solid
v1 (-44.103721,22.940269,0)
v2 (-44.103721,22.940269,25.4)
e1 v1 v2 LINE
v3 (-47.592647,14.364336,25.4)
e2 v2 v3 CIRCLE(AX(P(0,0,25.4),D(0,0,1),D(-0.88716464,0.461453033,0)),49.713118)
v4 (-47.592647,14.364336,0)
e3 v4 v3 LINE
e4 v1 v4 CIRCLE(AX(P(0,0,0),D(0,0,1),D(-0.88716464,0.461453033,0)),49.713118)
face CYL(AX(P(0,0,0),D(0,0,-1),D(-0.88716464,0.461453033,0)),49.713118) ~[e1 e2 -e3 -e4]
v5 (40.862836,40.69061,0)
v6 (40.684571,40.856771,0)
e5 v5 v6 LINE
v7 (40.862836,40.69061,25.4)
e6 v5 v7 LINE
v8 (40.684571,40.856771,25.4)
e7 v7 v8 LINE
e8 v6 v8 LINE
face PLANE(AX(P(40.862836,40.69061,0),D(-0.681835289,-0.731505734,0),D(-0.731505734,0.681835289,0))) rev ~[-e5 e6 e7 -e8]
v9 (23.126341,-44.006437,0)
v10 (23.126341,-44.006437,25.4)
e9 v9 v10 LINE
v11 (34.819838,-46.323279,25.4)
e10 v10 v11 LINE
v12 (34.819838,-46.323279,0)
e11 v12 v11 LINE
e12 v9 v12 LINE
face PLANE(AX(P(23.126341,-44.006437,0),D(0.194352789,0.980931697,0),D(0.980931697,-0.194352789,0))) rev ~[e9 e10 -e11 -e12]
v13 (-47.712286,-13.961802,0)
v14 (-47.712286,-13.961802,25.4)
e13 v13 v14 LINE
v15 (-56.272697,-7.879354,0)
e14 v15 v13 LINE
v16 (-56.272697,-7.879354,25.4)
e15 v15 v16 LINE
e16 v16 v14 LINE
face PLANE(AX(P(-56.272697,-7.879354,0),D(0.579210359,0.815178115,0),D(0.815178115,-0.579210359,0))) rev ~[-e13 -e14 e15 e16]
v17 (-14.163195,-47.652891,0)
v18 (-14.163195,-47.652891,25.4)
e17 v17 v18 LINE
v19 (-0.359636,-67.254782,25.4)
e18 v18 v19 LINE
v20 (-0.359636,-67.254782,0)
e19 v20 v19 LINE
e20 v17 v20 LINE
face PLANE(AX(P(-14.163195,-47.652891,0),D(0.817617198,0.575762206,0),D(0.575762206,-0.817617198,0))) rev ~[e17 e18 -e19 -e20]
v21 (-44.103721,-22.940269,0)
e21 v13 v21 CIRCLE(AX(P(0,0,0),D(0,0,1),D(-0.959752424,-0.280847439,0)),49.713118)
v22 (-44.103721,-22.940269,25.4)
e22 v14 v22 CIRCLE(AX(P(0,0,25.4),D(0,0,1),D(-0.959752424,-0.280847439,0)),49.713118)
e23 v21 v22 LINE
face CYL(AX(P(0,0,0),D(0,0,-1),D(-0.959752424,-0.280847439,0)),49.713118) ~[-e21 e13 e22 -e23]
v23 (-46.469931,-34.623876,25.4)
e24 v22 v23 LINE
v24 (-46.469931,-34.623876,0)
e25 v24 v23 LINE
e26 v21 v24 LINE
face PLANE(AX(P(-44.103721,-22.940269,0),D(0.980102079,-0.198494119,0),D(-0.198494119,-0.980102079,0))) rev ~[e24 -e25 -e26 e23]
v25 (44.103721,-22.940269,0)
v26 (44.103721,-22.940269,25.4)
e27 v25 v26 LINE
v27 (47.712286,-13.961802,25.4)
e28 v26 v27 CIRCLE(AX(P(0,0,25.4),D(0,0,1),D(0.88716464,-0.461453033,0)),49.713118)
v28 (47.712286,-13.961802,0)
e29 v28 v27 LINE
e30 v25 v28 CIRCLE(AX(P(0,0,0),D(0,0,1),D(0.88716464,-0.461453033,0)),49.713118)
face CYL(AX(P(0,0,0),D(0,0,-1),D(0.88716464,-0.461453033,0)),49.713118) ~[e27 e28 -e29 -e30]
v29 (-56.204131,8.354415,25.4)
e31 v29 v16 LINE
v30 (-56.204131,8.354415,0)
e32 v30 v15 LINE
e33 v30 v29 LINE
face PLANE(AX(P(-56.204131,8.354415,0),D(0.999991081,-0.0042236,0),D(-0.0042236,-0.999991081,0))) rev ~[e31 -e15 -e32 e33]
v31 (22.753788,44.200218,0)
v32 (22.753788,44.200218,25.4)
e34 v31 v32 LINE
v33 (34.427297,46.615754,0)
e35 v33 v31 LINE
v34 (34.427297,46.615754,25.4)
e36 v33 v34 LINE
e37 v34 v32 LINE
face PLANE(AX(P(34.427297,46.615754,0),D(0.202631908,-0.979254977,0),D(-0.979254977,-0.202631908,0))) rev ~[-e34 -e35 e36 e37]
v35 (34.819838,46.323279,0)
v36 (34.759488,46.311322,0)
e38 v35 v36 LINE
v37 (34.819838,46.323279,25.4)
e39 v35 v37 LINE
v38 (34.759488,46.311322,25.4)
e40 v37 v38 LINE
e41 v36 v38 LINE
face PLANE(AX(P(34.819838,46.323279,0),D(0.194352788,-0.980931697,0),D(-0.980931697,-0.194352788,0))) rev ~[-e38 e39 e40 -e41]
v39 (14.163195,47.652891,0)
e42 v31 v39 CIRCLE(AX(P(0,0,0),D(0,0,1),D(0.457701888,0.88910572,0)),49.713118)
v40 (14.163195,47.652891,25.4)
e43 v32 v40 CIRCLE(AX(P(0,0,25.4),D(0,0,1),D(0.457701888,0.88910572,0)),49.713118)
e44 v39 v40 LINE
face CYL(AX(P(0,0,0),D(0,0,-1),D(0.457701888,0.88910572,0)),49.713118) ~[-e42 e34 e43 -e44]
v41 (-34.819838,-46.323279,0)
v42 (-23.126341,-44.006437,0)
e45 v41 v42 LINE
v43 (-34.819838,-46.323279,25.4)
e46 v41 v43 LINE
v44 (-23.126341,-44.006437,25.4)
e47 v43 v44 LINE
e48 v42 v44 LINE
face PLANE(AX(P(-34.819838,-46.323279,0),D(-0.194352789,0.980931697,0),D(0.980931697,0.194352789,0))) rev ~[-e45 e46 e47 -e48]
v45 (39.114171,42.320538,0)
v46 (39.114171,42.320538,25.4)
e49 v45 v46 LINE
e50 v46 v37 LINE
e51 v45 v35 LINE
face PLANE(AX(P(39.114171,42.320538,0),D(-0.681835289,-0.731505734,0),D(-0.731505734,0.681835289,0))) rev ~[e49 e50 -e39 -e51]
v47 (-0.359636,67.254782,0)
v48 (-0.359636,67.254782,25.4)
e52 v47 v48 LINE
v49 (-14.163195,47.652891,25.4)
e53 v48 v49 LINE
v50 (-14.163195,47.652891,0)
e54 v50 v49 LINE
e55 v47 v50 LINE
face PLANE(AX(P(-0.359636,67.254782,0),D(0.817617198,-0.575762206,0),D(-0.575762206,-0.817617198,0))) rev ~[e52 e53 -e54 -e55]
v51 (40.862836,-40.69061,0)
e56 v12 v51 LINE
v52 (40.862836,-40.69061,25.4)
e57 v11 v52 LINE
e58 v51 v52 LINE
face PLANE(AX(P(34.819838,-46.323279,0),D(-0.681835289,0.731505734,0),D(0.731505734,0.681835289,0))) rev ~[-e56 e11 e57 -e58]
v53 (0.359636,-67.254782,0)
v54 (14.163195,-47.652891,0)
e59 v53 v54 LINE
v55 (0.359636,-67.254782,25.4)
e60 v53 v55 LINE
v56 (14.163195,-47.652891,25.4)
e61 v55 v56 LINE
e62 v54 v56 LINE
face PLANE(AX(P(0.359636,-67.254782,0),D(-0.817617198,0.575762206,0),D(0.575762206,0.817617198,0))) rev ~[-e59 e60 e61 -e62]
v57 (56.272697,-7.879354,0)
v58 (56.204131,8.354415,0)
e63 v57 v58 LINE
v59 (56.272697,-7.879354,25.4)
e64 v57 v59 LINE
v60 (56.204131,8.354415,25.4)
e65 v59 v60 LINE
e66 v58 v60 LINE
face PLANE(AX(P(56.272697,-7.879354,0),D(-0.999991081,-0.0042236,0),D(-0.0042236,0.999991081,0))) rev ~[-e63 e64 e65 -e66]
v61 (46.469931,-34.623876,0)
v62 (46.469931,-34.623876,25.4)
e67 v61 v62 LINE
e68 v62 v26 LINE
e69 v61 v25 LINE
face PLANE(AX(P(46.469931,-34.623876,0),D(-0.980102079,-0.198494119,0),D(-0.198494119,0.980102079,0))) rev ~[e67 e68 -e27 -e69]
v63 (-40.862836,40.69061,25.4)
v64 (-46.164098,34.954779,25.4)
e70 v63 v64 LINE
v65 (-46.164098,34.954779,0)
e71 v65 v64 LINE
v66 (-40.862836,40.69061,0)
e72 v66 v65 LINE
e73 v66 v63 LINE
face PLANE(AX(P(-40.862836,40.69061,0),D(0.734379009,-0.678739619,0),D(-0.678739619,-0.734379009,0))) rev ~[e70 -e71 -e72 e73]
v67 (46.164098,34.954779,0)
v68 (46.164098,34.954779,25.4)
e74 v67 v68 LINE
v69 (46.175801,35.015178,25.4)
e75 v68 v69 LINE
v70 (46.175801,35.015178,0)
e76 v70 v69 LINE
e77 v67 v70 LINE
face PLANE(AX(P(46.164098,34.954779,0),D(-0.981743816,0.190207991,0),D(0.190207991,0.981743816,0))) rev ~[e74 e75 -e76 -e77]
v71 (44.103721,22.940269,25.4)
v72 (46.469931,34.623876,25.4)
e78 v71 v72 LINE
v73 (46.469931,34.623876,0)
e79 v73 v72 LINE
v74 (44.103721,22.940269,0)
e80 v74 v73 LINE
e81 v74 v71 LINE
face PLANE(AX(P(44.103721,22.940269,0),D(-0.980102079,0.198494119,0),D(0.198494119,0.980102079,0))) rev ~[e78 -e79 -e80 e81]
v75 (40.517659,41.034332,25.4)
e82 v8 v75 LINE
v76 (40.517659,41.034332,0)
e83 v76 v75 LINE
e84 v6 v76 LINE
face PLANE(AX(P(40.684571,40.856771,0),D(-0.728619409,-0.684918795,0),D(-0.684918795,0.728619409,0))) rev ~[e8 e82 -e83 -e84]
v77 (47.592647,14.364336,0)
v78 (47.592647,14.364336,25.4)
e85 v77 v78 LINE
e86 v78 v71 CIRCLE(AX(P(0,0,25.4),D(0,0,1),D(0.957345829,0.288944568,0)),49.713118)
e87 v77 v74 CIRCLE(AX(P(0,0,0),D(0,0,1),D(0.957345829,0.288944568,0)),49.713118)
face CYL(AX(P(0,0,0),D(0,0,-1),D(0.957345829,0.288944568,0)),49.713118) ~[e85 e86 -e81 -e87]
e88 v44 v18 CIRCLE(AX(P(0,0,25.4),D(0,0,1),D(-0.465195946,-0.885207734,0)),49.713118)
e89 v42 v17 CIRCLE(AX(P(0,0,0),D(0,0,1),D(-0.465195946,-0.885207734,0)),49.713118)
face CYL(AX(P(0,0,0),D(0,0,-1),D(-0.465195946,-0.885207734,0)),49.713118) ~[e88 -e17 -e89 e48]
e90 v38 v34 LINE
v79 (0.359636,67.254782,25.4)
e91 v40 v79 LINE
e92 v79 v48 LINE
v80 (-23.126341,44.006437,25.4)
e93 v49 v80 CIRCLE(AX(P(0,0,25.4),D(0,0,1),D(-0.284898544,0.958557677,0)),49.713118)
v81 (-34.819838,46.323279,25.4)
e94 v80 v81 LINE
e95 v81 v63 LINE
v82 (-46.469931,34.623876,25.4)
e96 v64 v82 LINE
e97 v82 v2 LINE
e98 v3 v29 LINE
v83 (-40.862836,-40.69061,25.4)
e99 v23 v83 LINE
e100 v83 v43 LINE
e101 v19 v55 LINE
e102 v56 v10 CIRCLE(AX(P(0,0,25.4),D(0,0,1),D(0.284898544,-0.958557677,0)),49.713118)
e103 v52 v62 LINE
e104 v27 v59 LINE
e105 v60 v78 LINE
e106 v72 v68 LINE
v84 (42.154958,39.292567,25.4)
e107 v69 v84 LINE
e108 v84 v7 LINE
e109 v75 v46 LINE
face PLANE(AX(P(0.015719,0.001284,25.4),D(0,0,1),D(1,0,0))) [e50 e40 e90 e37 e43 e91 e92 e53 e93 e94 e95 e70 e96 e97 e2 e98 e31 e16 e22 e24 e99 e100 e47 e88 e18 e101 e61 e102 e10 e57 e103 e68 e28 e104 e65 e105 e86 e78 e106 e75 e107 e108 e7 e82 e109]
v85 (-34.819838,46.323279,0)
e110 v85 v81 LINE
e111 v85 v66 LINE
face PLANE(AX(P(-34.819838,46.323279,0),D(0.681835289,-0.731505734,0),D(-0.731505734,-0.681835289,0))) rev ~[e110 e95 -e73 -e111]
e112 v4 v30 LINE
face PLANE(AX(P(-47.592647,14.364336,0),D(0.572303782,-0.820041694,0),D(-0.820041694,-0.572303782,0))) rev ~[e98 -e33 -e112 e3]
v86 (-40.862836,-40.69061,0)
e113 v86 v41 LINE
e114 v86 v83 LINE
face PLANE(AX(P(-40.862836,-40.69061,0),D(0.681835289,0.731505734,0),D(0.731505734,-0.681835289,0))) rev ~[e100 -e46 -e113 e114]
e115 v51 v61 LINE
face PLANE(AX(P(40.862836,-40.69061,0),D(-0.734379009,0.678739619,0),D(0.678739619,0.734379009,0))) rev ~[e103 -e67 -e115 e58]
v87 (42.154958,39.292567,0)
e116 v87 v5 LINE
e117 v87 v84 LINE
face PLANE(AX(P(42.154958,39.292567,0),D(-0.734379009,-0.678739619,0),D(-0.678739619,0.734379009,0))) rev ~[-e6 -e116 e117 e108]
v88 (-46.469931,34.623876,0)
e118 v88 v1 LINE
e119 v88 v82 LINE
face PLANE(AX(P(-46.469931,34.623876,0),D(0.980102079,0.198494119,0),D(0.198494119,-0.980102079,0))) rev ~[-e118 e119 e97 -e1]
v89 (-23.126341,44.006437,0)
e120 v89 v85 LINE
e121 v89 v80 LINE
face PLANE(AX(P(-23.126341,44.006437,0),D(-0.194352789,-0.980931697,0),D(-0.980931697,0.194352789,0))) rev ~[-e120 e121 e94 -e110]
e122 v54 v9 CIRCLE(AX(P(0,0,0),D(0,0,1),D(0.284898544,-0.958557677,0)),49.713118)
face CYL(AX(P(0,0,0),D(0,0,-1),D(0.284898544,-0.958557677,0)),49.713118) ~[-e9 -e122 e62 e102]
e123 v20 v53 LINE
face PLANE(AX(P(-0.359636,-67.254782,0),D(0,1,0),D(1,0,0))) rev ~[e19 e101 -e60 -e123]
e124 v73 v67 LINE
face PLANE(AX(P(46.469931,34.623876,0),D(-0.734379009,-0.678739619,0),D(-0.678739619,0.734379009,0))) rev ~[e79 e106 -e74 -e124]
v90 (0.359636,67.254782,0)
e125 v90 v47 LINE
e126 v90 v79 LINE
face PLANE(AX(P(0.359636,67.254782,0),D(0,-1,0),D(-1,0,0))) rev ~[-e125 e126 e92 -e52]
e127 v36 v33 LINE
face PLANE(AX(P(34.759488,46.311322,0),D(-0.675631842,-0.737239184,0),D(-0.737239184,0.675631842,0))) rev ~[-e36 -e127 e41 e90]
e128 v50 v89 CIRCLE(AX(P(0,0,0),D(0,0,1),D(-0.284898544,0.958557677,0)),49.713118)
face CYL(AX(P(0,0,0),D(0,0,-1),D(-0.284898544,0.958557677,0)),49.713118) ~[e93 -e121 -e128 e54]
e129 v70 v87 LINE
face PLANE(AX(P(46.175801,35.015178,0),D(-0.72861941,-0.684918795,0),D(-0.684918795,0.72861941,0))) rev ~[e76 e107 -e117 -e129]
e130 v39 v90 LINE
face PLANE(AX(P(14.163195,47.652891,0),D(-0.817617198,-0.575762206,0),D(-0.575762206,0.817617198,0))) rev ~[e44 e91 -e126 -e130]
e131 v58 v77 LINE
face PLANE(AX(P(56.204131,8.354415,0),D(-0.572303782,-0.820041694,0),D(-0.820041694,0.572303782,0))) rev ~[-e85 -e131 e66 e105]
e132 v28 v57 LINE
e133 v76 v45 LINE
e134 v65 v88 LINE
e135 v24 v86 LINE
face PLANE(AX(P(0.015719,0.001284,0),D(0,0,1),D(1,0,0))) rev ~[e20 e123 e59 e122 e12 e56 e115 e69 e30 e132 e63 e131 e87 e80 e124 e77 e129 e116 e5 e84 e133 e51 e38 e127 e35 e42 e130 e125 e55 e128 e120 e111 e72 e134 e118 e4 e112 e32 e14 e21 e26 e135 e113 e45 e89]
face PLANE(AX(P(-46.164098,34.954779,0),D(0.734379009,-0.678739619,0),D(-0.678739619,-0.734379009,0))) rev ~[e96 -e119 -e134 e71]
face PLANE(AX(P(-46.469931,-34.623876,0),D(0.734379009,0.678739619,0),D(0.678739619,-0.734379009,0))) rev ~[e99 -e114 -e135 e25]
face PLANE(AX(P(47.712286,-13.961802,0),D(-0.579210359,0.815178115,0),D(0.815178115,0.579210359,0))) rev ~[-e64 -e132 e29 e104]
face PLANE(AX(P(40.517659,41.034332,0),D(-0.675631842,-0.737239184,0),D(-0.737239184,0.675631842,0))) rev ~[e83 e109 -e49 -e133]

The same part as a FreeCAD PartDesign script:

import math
import FreeCAD as App
import Part
import Sketcher

V = App.Vector
Q = App.Units.Quantity

doc = App.newDocument("Part")
body = doc.addObject("PartDesign::Body", "Body")

sketch1 = body.newObject("Sketcher::SketchObject", "Sketch")
sketch1.AttachmentSupport = (doc.getObject("XY_Plane"), [""])
sketch1.MapMode = "FlatFace"
sketch1.addGeometry([
    Part.ArcOfCircle(Part.Circle(V(0, 0, 0), V(0, 0, 1), 49.71), math.radians(16.79), math.radians(27.48)),
    Part.LineSegment(V(44.1, 22.94, 0), V(46.47, 34.62, 0)),
    Part.LineSegment(V(46.47, 34.62, 0), V(46.16, 34.95, 0)),
    Part.LineSegment(V(46.16, 34.95, 0), V(46.18, 35.02, 0)),
    Part.LineSegment(V(46.18, 35.02, 0), V(42.15, 39.29, 0)),
    Part.LineSegment(V(42.15, 39.29, 0), V(40.86, 40.69, 0)),
    Part.LineSegment(V(40.86, 40.69, 0), V(40.68, 40.86, 0)),
    Part.LineSegment(V(40.68, 40.86, 0), V(40.52, 41.03, 0)),
    Part.LineSegment(V(40.52, 41.03, 0), V(39.11, 42.32, 0)),
    Part.LineSegment(V(39.11, 42.32, 0), V(34.82, 46.32, 0)),
    Part.LineSegment(V(34.82, 46.32, 0), V(34.76, 46.31, 0)),
    Part.LineSegment(V(34.76, 46.31, 0), V(34.43, 46.62, 0)),
    Part.LineSegment(V(34.43, 46.62, 0), V(22.75, 44.2, 0)),
    Part.ArcOfCircle(Part.Circle(V(0, 0, 0), V(0, 0, 1), 49.71), math.radians(62.76), math.radians(73.45)),
    Part.LineSegment(V(14.16, 47.65, 0), V(0.36, 67.25, 0)),
    Part.LineSegment(V(0.36, 67.25, 0), V(-0.36, 67.25, 0)),
    Part.LineSegment(V(-0.36, 67.25, 0), V(-14.16, 47.65, 0)),
    Part.ArcOfCircle(Part.Circle(V(0, 0, 0), V(0, 0, 1), 49.71), math.radians(106.55), math.radians(117.72)),
    Part.LineSegment(V(-23.13, 44.01, 0), V(-34.82, 46.32, 0)),
    Part.LineSegment(V(-34.82, 46.32, 0), V(-40.86, 40.69, 0)),
    Part.LineSegment(V(-40.86, 40.69, 0), V(-46.16, 34.95, 0)),
    Part.LineSegment(V(-46.16, 34.95, 0), V(-46.47, 34.62, 0)),
    Part.LineSegment(V(-46.47, 34.62, 0), V(-44.1, 22.94, 0)),
    Part.ArcOfCircle(Part.Circle(V(0, 0, 0), V(0, 0, 1), 49.71), math.radians(152.52), math.radians(163.21)),
    Part.LineSegment(V(-47.59, 14.36, 0), V(-56.2, 8.35, 0)),
    Part.LineSegment(V(-56.2, 8.35, 0), V(-56.27, -7.88, 0)),
    Part.LineSegment(V(-56.27, -7.88, 0), V(-47.71, -13.96, 0)),
    Part.ArcOfCircle(Part.Circle(V(0, 0, 0), V(0, 0, 1), 49.71), math.radians(-163.69), math.radians(-152.52)),
    Part.LineSegment(V(-44.1, -22.94, 0), V(-46.47, -34.62, 0)),
    Part.LineSegment(V(-46.47, -34.62, 0), V(-40.86, -40.69, 0)),
    Part.LineSegment(V(-40.86, -40.69, 0), V(-34.82, -46.32, 0)),
    Part.LineSegment(V(-34.82, -46.32, 0), V(-23.13, -44.01, 0)),
    Part.ArcOfCircle(Part.Circle(V(0, 0, 0), V(0, 0, 1), 49.71), math.radians(-117.72), math.radians(-106.55)),
    Part.LineSegment(V(-14.16, -47.65, 0), V(-0.36, -67.25, 0)),
    Part.LineSegment(V(-0.36, -67.25, 0), V(0.36, -67.25, 0)),
    Part.LineSegment(V(0.36, -67.25, 0), V(14.16, -47.65, 0)),
    Part.ArcOfCircle(Part.Circle(V(0, 0, 0), V(0, 0, 1), 49.71), math.radians(-73.45), math.radians(-62.28)),
    Part.LineSegment(V(23.13, -44.01, 0), V(34.82, -46.32, 0)),
    Part.LineSegment(V(34.82, -46.32, 0), V(40.86, -40.69, 0)),
    Part.LineSegment(V(40.86, -40.69, 0), V(46.47, -34.62, 0)),
    Part.LineSegment(V(46.47, -34.62, 0), V(44.1, -22.94, 0)),
    Part.ArcOfCircle(Part.Circle(V(0, 0, 0), V(0, 0, 1), 49.71), math.radians(-27.48), math.radians(-16.31)),
    Part.LineSegment(V(47.71, -13.96, 0), V(56.27, -7.88, 0)),
    Part.LineSegment(V(56.27, -7.88, 0), V(56.2, 8.35, 0)),
    Part.LineSegment(V(56.2, 8.35, 0), V(47.59, 14.36, 0)),
], False)
sketch1.addConstraint([
    Sketcher.Constraint("Coincident", 0, 2, 1, 1),
    Sketcher.Constraint("Coincident", 1, 2, 2, 1),
    Sketcher.Constraint("Coincident", 2, 2, 3, 1),
    Sketcher.Constraint("Coincident", 3, 2, 4, 1),
    Sketcher.Constraint("Coincident", 4, 2, 5, 1),
    Sketcher.Constraint("Coincident", 5, 2, 6, 1),
    Sketcher.Constraint("Coincident", 6, 2, 7, 1),
    Sketcher.Constraint("Coincident", 7, 2, 8, 1),
    Sketcher.Constraint("Coincident", 8, 2, 9, 1),
    Sketcher.Constraint("Coincident", 9, 2, 10, 1),
    Sketcher.Constraint("Coincident", 10, 2, 11, 1),
    Sketcher.Constraint("Coincident", 11, 2, 12, 1),
    Sketcher.Constraint("Coincident", 12, 2, 13, 1),
    Sketcher.Constraint("Coincident", 13, 2, 14, 1),
    Sketcher.Constraint("Coincident", 14, 2, 15, 1),
    Sketcher.Constraint("Coincident", 15, 2, 16, 1),
    Sketcher.Constraint("Coincident", 16, 2, 17, 1),
    Sketcher.Constraint("Coincident", 17, 2, 18, 1),
    Sketcher.Constraint("Coincident", 18, 2, 19, 1),
    Sketcher.Constraint("Coincident", 19, 2, 20, 1),
    Sketcher.Constraint("Coincident", 20, 2, 21, 1),
    Sketcher.Constraint("Coincident", 21, 2, 22, 1),
    Sketcher.Constraint("Coincident", 22, 2, 23, 1),
    Sketcher.Constraint("Coincident", 23, 2, 24, 1),
    Sketcher.Constraint("Coincident", 24, 2, 25, 1),
    Sketcher.Constraint("Coincident", 25, 2, 26, 1),
    Sketcher.Constraint("Coincident", 26, 2, 27, 1),
    Sketcher.Constraint("Coincident", 27, 2, 28, 1),
    Sketcher.Constraint("Coincident", 28, 2, 29, 1),
    Sketcher.Constraint("Coincident", 29, 2, 30, 1),
    Sketcher.Constraint("Coincident", 30, 2, 31, 1),
    Sketcher.Constraint("Coincident", 31, 2, 32, 1),
    Sketcher.Constraint("Coincident", 32, 2, 33, 1),
    Sketcher.Constraint("Coincident", 33, 2, 34, 1),
    Sketcher.Constraint("Coincident", 34, 2, 35, 1),
    Sketcher.Constraint("Coincident", 35, 2, 36, 1),
    Sketcher.Constraint("Coincident", 36, 2, 37, 1),
    Sketcher.Constraint("Coincident", 37, 2, 38, 1),
    Sketcher.Constraint("Coincident", 38, 2, 39, 1),
    Sketcher.Constraint("Coincident", 39, 2, 40, 1),
    Sketcher.Constraint("Coincident", 40, 2, 41, 1),
    Sketcher.Constraint("Coincident", 41, 2, 42, 1),
    Sketcher.Constraint("Coincident", 42, 2, 43, 1),
    Sketcher.Constraint("Coincident", 43, 2, 44, 1),
    Sketcher.Constraint("Coincident", 44, 2, 0, 1),
    Sketcher.Constraint("Horizontal", 15),
    Sketcher.Constraint("Horizontal", 34),
    Sketcher.Constraint("Coincident", 0, 3, -1, 1),
    Sketcher.Constraint("Coincident", 13, 3, -1, 1),
    Sketcher.Constraint("Coincident", 17, 3, -1, 1),
    Sketcher.Constraint("Coincident", 23, 3, -1, 1),
    Sketcher.Constraint("Coincident", 27, 3, -1, 1),
    Sketcher.Constraint("Coincident", 32, 3, -1, 1),
    Sketcher.Constraint("Coincident", 36, 3, -1, 1),
    Sketcher.Constraint("Coincident", 41, 3, -1, 1),
    Sketcher.Constraint("Equal", 0, 13),
    Sketcher.Constraint("Equal", 13, 17),
    Sketcher.Constraint("Equal", 17, 23),
    Sketcher.Constraint("Equal", 23, 27),
    Sketcher.Constraint("Equal", 27, 32),
    Sketcher.Constraint("Equal", 32, 36),
    Sketcher.Constraint("Equal", 36, 41),
    Sketcher.Constraint("Symmetric", 1, 2, 28, 2, -1, 1),
    Sketcher.Constraint("Symmetric", 5, 2, 29, 2, -1, 1),
    Sketcher.Constraint("Symmetric", 9, 2, 30, 2, -1, 1),
    Sketcher.Constraint("Symmetric", 14, 2, 33, 2, -1, 1),
    Sketcher.Constraint("Symmetric", 18, 2, 37, 2, -1, 1),
    Sketcher.Constraint("Symmetric", 19, 2, 38, 2, -1, 1),
    Sketcher.Constraint("Symmetric", 21, 2, 39, 2, -1, 1),
    Sketcher.Constraint("Symmetric", 9, 2, 18, 2, -2),
    Sketcher.Constraint("Symmetric", 5, 2, 19, 2, -2),
    Sketcher.Constraint("Symmetric", 2, 2, 20, 2, -2),
    Sketcher.Constraint("Symmetric", 1, 2, 21, 2, -2),
    Sketcher.Constraint("Symmetric", 25, 2, 42, 2, -2),
    Sketcher.Constraint("Symmetric", 24, 2, 43, 2, -2),
    Sketcher.Constraint("Parallel", 2, 5),
    Sketcher.Constraint("Parallel", 4, 7),
    Sketcher.Constraint("Parallel", 6, 9),
    Sketcher.Constraint("Parallel", 8, 11),
    Sketcher.Constraint("Parallel", 20, 21),
    Sketcher.Constraint("Parallel", 1, 28),
    Sketcher.Constraint("Parallel", 9, 30),
    Sketcher.Constraint("Parallel", 10, 31),
    Sketcher.Constraint("Parallel", 14, 33),
    Sketcher.Constraint("Parallel", 16, 35),
    Sketcher.Constraint("Parallel", 18, 37),
    Sketcher.Constraint("Parallel", 22, 40),
    Sketcher.Constraint("Horizontal", 13, 2, 16, 2),
    Sketcher.Constraint("Horizontal", 0, 2, 22, 2),
    Sketcher.Constraint("Horizontal", 32, 2, 35, 2),
    Sketcher.Constraint("Horizontal", 31, 2, 36, 2),
    Sketcher.Constraint("Horizontal", 26, 2, 41, 2),
    Sketcher.Constraint("Horizontal", 23, 2, 44, 2),
    Sketcher.Constraint("Vertical", 15, 2, 33, 2),
    Sketcher.Constraint("Equal", 6, 7),
    Sketcher.Constraint("Equal", 5, 8),
    Sketcher.Constraint("Equal", 4, 9),
    Sketcher.Constraint("Equal", 3, 10),
    Sketcher.Constraint("Equal", 2, 11),
    Sketcher.Constraint("Equal", 1, 12),
    Sketcher.Constraint("Equal", 12, 18),
    Sketcher.Constraint("Equal", 24, 26),
    Sketcher.Constraint("Equal", 19, 29),
    Sketcher.Constraint("Radius", 0, Q("49.713118 mm")),
    Sketcher.Constraint("DistanceY", 12, 2, 11, 2, Q("0.0950998 in")),
    Sketcher.Constraint("DistanceX", 15, 2, 15, 1, Q("0.719271 mm")),
    Sketcher.Constraint("DistanceX", -1, 1, 2, 2, Q("46.164098 mm")),
    Sketcher.Constraint("DistanceX", -1, 1, 3, 2, Q("46.175801 mm")),
    Sketcher.Constraint("DistanceY", 26, 2, -1, 1, Q("13.961802 mm")),
    Sketcher.Constraint("DistanceY", 2, 2, 3, 2, Q("0.060399 mm")),
    Sketcher.Constraint("DistanceX", 7, 2, 4, 2, Q("1.637299 mm")),
    Sketcher.Constraint("DistanceX", 8, 2, 6, 2, Q("1.5704 mm")),
    Sketcher.Constraint("DistanceX", 12, 2, 10, 2, Q("12.0057 mm")),
    Sketcher.Constraint("DistanceX", 13, 2, 11, 2, Q("20.264102 mm")),
    Sketcher.Constraint("DistanceX", 19, 2, 15, 2, Q("40.5032 mm")),
    Sketcher.Constraint("DistanceY", 20, 2, 18, 2, Q("11.3685 mm")),
    Sketcher.Constraint("DistanceX", 24, 2, 21, 2, Q("9.734201 mm")),
    Sketcher.Constraint("DistanceX", 25, 2, 20, 2, Q("10.108598 mm")),
    Sketcher.Constraint("Distance", 2, Q("0.450588 mm")),
    Sketcher.Constraint("Distance", 14, Q("23.974411 mm")),
    Sketcher.Constraint("DistanceY", 23, 2, 21, 2, Q("20.259541 mm")),
    Sketcher.Constraint("DistanceY", 24, 2, 23, 2, Q("6.00992 mm")),
])
pad1 = body.newObject("PartDesign::Pad", "Pad")
pad1.Profile = sketch1
pad1.Length = Q("1 in")

doc.recompute()
